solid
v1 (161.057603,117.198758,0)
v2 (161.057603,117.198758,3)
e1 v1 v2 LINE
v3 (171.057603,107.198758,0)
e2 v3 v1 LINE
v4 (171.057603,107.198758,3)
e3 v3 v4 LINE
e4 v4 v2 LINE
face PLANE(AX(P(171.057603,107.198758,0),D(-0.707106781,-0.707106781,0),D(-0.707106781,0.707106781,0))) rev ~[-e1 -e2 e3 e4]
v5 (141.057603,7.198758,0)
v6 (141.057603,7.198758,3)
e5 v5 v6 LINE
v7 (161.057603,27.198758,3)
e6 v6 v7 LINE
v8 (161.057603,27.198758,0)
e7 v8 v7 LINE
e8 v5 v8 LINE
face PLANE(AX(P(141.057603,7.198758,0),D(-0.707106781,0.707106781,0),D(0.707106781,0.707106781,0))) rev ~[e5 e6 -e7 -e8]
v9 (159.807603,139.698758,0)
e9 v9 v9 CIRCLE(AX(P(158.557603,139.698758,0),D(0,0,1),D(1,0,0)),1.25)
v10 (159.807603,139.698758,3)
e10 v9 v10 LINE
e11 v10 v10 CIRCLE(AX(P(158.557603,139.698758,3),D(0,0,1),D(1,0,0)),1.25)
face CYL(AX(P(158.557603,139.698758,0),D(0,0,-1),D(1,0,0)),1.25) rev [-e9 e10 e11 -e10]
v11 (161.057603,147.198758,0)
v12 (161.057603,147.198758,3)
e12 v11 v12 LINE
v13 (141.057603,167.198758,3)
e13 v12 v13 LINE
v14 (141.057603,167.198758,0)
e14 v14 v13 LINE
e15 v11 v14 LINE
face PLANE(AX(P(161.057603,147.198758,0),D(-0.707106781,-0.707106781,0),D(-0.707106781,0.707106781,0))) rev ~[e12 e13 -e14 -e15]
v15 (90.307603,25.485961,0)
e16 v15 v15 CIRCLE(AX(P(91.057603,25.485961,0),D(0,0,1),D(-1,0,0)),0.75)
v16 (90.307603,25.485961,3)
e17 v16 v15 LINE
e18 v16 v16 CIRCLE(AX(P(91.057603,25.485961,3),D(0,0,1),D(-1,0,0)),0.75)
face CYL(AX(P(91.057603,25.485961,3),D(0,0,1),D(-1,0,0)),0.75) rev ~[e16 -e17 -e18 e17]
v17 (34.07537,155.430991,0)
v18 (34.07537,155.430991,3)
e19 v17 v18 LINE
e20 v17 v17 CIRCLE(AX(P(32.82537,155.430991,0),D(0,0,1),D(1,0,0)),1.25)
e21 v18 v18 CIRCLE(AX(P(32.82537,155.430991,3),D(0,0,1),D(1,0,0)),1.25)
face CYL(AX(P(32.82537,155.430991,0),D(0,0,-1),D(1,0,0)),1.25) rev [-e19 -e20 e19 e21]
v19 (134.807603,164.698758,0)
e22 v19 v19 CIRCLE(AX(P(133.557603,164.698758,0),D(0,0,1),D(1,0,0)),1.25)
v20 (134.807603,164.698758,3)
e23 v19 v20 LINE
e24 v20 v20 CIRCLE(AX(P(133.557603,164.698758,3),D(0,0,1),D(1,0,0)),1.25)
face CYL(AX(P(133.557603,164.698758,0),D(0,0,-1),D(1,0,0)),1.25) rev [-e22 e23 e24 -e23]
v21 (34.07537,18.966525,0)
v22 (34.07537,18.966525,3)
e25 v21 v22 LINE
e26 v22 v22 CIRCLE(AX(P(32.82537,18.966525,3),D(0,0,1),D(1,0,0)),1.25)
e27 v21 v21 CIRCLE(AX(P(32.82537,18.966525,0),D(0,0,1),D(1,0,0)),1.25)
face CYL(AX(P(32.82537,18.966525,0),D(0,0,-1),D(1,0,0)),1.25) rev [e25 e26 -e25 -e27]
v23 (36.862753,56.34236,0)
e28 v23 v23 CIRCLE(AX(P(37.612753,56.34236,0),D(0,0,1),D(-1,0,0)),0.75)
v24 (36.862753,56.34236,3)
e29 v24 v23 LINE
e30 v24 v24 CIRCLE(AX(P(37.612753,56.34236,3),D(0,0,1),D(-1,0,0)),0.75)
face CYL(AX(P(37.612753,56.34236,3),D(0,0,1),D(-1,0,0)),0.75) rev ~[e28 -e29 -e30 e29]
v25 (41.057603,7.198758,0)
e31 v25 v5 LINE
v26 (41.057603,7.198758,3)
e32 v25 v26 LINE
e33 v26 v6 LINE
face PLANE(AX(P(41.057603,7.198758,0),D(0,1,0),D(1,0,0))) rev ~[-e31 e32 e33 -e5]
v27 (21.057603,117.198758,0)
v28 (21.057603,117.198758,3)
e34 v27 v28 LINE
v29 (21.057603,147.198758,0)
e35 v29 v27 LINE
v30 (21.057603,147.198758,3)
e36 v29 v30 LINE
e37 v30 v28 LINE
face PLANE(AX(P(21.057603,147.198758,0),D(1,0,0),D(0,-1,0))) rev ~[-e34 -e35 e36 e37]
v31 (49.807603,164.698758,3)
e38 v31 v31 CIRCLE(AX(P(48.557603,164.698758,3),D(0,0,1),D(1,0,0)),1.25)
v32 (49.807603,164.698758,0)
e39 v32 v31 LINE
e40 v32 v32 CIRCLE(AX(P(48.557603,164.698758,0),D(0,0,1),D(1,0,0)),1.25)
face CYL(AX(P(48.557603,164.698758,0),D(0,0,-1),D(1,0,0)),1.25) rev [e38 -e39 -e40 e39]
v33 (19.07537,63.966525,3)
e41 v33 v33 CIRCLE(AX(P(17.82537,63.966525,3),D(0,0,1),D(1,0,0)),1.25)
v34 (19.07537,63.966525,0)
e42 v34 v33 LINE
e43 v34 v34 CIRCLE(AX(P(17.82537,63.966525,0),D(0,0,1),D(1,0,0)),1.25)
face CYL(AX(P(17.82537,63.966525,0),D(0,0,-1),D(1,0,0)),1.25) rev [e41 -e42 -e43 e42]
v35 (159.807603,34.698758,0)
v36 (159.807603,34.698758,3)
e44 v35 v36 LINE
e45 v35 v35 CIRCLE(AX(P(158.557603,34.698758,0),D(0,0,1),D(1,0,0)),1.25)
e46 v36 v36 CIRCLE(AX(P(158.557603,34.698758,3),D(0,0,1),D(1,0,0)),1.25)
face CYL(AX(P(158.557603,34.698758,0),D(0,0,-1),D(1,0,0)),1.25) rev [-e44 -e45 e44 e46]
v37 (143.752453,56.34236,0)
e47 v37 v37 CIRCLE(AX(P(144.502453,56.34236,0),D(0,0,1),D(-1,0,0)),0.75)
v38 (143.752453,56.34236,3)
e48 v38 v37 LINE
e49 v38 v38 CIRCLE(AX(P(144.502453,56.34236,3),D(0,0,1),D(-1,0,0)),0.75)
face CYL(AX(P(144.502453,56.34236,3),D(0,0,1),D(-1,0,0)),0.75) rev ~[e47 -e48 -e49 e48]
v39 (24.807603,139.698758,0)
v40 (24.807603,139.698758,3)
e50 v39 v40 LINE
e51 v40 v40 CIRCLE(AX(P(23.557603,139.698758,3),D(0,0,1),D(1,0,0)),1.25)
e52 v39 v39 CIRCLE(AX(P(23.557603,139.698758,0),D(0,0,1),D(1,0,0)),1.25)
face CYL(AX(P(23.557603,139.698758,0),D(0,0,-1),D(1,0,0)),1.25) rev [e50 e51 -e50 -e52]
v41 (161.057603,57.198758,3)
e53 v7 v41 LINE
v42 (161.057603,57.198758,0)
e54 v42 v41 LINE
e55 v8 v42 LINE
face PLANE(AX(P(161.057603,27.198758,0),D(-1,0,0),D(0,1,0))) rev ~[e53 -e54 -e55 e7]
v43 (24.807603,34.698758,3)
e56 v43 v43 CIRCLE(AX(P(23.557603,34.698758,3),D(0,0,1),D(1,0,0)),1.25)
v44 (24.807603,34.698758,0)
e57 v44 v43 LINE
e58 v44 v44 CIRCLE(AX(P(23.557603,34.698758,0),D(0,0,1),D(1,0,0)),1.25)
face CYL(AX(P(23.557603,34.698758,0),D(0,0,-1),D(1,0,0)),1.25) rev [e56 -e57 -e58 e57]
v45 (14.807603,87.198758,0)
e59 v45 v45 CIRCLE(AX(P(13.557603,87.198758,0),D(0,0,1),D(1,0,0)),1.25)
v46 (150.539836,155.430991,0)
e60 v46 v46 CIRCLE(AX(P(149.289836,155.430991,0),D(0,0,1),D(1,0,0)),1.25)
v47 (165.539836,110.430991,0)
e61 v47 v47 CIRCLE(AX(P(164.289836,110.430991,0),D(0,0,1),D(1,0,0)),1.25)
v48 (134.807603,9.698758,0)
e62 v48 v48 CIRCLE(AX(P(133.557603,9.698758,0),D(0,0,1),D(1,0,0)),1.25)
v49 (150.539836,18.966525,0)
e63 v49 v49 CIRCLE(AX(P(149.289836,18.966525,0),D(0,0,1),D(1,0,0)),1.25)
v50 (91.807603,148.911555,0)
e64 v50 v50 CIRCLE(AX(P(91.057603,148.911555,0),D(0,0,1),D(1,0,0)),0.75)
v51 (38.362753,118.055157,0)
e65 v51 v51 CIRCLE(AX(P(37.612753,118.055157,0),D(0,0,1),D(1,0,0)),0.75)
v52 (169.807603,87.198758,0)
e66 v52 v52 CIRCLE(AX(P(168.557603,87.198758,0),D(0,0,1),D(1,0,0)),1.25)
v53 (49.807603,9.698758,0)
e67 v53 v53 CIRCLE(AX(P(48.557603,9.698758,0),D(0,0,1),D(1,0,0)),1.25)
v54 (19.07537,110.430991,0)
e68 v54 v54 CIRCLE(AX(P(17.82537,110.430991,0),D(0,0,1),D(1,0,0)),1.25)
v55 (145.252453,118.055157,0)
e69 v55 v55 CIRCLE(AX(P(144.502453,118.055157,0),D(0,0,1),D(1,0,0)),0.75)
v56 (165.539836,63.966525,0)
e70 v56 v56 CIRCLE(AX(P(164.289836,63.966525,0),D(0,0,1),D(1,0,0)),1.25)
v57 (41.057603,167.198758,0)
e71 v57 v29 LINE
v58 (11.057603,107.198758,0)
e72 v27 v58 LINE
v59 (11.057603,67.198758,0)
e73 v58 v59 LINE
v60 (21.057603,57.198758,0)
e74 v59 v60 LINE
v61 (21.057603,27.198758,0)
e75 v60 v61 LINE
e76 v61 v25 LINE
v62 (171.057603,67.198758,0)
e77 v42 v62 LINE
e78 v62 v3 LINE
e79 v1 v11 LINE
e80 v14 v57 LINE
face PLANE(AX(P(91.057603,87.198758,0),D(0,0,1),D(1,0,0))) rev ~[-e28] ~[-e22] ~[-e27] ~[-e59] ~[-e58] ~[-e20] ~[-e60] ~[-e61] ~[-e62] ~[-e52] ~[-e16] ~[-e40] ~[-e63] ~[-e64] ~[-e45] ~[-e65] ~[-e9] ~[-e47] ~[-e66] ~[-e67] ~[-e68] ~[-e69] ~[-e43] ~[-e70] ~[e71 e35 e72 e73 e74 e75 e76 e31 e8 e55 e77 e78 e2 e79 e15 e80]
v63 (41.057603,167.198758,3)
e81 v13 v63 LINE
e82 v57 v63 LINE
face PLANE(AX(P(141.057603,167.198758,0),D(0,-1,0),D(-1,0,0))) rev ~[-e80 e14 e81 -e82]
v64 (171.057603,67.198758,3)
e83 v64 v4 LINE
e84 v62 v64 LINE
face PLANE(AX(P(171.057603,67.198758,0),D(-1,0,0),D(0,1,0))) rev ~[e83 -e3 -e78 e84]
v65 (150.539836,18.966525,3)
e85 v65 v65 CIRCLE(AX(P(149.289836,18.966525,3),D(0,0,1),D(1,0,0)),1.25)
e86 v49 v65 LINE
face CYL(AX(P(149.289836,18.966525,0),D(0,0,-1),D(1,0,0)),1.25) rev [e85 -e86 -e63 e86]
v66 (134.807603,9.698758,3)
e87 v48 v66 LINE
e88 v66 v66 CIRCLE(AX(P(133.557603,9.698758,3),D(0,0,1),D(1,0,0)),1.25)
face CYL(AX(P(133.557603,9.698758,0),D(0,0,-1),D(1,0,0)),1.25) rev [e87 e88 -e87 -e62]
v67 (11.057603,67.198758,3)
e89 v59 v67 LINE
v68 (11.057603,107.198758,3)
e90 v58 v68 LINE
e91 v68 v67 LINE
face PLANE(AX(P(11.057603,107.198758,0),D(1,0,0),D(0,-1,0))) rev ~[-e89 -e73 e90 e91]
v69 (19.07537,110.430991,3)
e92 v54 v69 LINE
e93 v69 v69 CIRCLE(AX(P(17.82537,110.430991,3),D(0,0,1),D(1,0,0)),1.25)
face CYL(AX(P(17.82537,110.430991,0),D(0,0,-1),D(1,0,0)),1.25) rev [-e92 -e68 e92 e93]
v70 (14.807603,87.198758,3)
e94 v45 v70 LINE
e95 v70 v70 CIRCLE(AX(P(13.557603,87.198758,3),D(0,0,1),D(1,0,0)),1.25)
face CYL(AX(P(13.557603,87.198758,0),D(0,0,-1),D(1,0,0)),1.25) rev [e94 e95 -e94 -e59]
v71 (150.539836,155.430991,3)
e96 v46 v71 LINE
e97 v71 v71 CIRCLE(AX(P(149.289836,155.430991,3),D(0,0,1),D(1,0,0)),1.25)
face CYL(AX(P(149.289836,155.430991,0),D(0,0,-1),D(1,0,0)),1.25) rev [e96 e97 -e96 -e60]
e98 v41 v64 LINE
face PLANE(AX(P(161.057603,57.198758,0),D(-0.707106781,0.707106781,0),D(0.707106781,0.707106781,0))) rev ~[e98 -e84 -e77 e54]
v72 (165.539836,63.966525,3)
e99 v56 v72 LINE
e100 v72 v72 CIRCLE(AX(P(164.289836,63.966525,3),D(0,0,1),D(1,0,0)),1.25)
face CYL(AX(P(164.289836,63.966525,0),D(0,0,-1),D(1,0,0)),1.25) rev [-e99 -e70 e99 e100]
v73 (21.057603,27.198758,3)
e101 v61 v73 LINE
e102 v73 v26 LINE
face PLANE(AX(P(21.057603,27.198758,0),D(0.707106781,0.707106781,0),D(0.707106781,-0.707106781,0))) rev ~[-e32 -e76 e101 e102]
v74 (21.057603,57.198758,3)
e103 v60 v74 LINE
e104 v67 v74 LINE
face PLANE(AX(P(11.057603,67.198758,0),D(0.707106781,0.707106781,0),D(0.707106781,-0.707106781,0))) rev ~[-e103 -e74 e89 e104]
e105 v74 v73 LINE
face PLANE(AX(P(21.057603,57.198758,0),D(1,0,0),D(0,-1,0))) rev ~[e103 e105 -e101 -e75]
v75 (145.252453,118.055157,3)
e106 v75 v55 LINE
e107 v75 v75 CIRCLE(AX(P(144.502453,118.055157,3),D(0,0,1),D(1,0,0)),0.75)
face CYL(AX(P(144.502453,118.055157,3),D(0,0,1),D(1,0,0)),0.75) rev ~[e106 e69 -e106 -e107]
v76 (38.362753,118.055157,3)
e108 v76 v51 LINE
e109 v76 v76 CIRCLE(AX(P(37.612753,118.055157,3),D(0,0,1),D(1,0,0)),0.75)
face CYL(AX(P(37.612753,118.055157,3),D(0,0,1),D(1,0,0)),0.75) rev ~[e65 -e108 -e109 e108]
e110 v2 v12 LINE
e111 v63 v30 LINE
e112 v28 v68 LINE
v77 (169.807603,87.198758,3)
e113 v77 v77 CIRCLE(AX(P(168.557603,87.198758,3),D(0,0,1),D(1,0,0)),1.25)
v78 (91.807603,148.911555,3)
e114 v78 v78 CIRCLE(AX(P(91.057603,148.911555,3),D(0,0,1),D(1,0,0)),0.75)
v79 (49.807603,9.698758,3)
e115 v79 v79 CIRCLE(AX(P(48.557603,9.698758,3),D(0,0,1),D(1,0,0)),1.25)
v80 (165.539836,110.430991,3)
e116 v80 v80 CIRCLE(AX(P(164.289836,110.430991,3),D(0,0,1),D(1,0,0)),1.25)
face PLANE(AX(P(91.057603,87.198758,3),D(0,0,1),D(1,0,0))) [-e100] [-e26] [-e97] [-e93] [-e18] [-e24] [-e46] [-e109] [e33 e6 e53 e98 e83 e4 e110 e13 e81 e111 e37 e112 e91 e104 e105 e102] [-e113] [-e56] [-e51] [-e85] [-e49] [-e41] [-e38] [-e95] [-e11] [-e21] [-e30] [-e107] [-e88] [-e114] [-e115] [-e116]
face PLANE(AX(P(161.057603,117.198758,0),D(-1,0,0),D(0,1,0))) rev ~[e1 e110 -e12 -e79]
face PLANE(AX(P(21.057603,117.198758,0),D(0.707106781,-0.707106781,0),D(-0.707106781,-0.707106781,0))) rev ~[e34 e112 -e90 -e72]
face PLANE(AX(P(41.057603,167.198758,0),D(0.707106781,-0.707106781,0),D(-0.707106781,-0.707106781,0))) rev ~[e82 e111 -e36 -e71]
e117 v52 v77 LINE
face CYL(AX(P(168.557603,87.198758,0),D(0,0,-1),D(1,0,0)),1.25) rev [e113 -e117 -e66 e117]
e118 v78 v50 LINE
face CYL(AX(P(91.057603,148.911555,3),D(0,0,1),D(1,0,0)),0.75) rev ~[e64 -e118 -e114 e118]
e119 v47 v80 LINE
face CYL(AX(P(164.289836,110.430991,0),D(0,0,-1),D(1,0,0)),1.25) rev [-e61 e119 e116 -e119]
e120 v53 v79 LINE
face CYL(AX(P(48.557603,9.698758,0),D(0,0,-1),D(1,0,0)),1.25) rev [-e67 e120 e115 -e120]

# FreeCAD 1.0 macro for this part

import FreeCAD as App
import Part
import Sketcher

doc = App.newDocument("Part")
params = doc.addObject("Spreadsheet::Sheet", "Params")
for row, (alias, value) in enumerate([
    ("sketch1_diameter", "2.5 mm"),
    ("sketch1_width", "100 mm"),
    ("sketch1_height", "30 mm"),
    ("sketch1_height2", "40 mm"),
    ("pad1_length", "3 mm"),
    ("sketch2_diameter", "1.5 mm"),
    ("pocket1_length", "10 mm"),
], start=1):
    params.set(f"A{row}", alias)
    params.set(f"B{row}", "=" + value)
    params.setAlias(f"B{row}", alias)

body = doc.addObject("PartDesign::Body", "Body")

# Sketch on XY plane
sketch1 = body.newObject("Sketcher::SketchObject", "Sketch")
sketch1.AttachmentSupport = (doc.getObject("XY_Plane"), [""])
sketch1.MapMode = "FlatFace"
sketch1.addGeometry([
    Part.LineSegment(App.Vector(41.057603, 7.198758, 0), App.Vector(141.057603, 7.198758, 0)),  # 0
    Part.LineSegment(App.Vector(141.057603, 7.198758, 0), App.Vector(161.057603, 27.198758, 0)),  # 1
    Part.LineSegment(App.Vector(161.057603, 27.198758, 0), App.Vector(161.057603, 57.198758, 0)),  # 2
    Part.LineSegment(App.Vector(161.057603, 57.198758, 0), App.Vector(171.057603, 67.198758, 0)),  # 3
    Part.LineSegment(App.Vector(171.057603, 67.198758, 0), App.Vector(171.057603, 107.198758, 0)),  # 4
    Part.LineSegment(App.Vector(171.057603, 107.198758, 0), App.Vector(161.057603, 117.198758, 0)),  # 5
    Part.LineSegment(App.Vector(161.057603, 117.198758, 0), App.Vector(161.057603, 147.198758, 0)),  # 6
    Part.LineSegment(App.Vector(161.057603, 147.198758, 0), App.Vector(141.057603, 167.198758, 0)),  # 7
    Part.LineSegment(App.Vector(141.057603, 167.198758, 0), App.Vector(41.057603, 167.198758, 0)),  # 8
    Part.LineSegment(App.Vector(41.057603, 167.198758, 0), App.Vector(21.057603, 147.198758, 0)),  # 9
    Part.LineSegment(App.Vector(21.057603, 147.198758, 0), App.Vector(21.057603, 117.198758, 0)),  # 10
    Part.LineSegment(App.Vector(21.057603, 117.198758, 0), App.Vector(11.057603, 107.198758, 0)),  # 11
    Part.LineSegment(App.Vector(11.057603, 107.198758, 0), App.Vector(11.057603, 67.198758, 0)),  # 12
    Part.LineSegment(App.Vector(11.057603, 67.198758, 0), App.Vector(21.057603, 57.198758, 0)),  # 13
    Part.LineSegment(App.Vector(21.057603, 57.198758, 0), App.Vector(21.057603, 27.198758, 0)),  # 14
    Part.LineSegment(App.Vector(21.057603, 27.198758, 0), App.Vector(41.057603, 7.198758, 0)),  # 15
    Part.Circle(App.Vector(48.557603, 9.698758, 0), App.Vector(0, 0, 1), 1.25),  # 16
    Part.Circle(App.Vector(32.82537, 18.966525, 0), App.Vector(0, 0, 1), 1.25),  # 17
    Part.Circle(App.Vector(23.557603, 34.698758, 0), App.Vector(0, 0, 1), 1.25),  # 18
    Part.Circle(App.Vector(17.82537, 63.966525, 0), App.Vector(0, 0, 1), 1.25),  # 19
    Part.Circle(App.Vector(133.557603, 9.698758, 0), App.Vector(0, 0, 1), 1.25),  # 20
    Part.Circle(App.Vector(149.289836, 18.966525, 0), App.Vector(0, 0, 1), 1.25),  # 21
    Part.Circle(App.Vector(158.557603, 34.698758, 0), App.Vector(0, 0, 1), 1.25),  # 22
    Part.Circle(App.Vector(164.289836, 63.966525, 0), App.Vector(0, 0, 1), 1.25),  # 23
    Part.Circle(App.Vector(13.557603, 87.198758, 0), App.Vector(0, 0, 1), 1.25),  # 24
    Part.Circle(App.Vector(17.82537, 110.430991, 0), App.Vector(0, 0, 1), 1.25),  # 25
    Part.Circle(App.Vector(23.557603, 139.698758, 0), App.Vector(0, 0, 1), 1.25),  # 26
    Part.Circle(App.Vector(32.82537, 155.430991, 0), App.Vector(0, 0, 1), 1.25),  # 27
    Part.Circle(App.Vector(48.557603, 164.698758, 0), App.Vector(0, 0, 1), 1.25),  # 28
    Part.Circle(App.Vector(168.557603, 87.198758, 0), App.Vector(0, 0, 1), 1.25),  # 29
    Part.Circle(App.Vector(164.289836, 110.430991, 0), App.Vector(0, 0, 1), 1.25),  # 30
    Part.Circle(App.Vector(158.557603, 139.698758, 0), App.Vector(0, 0, 1), 1.25),  # 31
    Part.Circle(App.Vector(149.289836, 155.430991, 0), App.Vector(0, 0, 1), 1.25),  # 32
    Part.Circle(App.Vector(133.557603, 164.698758, 0), App.Vector(0, 0, 1), 1.25),  # 33
], False)
sketch1.addConstraint([
    Sketcher.Constraint("Coincident", 0, 2, 1, 1),
    Sketcher.Constraint("Coincident", 1, 2, 2, 1),
    Sketcher.Constraint("Coincident", 2, 2, 3, 1),
    Sketcher.Constraint("Coincident", 3, 2, 4, 1),
    Sketcher.Constraint("Coincident", 4, 2, 5, 1),
    Sketcher.Constraint("Coincident", 5, 2, 6, 1),
    Sketcher.Constraint("Coincident", 6, 2, 7, 1),
    Sketcher.Constraint("Coincident", 7, 2, 8, 1),
    Sketcher.Constraint("Coincident", 8, 2, 9, 1),
    Sketcher.Constraint("Coincident", 9, 2, 10, 1),
    Sketcher.Constraint("Coincident", 10, 2, 11, 1),
    Sketcher.Constraint("Coincident", 11, 2, 12, 1),
    Sketcher.Constraint("Coincident", 12, 2, 13, 1),
    Sketcher.Constraint("Coincident", 13, 2, 14, 1),
    Sketcher.Constraint("Coincident", 14, 2, 15, 1),
    Sketcher.Constraint("Coincident", 15, 2, 0, 1),
    Sketcher.Constraint("Horizontal", 0),
    Sketcher.Constraint("Vertical", 2),
    Sketcher.Constraint("Vertical", 4),
    Sketcher.Constraint("Vertical", 6),
    Sketcher.Constraint("Horizontal", 8),
    Sketcher.Constraint("Vertical", 10),
    Sketcher.Constraint("Vertical", 12),
    Sketcher.Constraint("Vertical", 14),
    Sketcher.Constraint("Equal", 16, 17),
    Sketcher.Constraint("Equal", 17, 18),
    Sketcher.Constraint("Equal", 18, 19),
    Sketcher.Constraint("Equal", 19, 20),
    Sketcher.Constraint("Equal", 20, 21),
    Sketcher.Constraint("Equal", 21, 22),
    Sketcher.Constraint("Equal", 22, 23),
    Sketcher.Constraint("Equal", 23, 24),
    Sketcher.Constraint("Equal", 24, 25),
    Sketcher.Constraint("Equal", 25, 26),
    Sketcher.Constraint("Equal", 26, 27),
    Sketcher.Constraint("Equal", 27, 28),
    Sketcher.Constraint("Equal", 28, 29),
    Sketcher.Constraint("Equal", 29, 30),
    Sketcher.Constraint("Equal", 30, 31),
    Sketcher.Constraint("Equal", 31, 32),
    Sketcher.Constraint("Equal", 32, 33),
    Sketcher.Constraint("Parallel", 1, 3),
    Sketcher.Constraint("Perpendicular", 3, 5),
    Sketcher.Constraint("Parallel", 5, 7),
    Sketcher.Constraint("Perpendicular", 7, 9),
    Sketcher.Constraint("Parallel", 9, 11),
    Sketcher.Constraint("Perpendicular", 11, 13),
    Sketcher.Constraint("Parallel", 13, 15),
    Sketcher.Constraint("Horizontal", 16, 3, 20, 3),
    Sketcher.Constraint("Horizontal", 17, 3, 21, 3),
    Sketcher.Constraint("Horizontal", 18, 3, 22, 3),
    Sketcher.Constraint("Horizontal", 19, 3, 23, 3),
    Sketcher.Constraint("Horizontal", 24, 3, 29, 3),
    Sketcher.Constraint("Horizontal", 25, 3, 30, 3),
    Sketcher.Constraint("Horizontal", 26, 3, 31, 3),
    Sketcher.Constraint("Horizontal", 27, 3, 32, 3),
    Sketcher.Constraint("Horizontal", 28, 3, 33, 3),
    Sketcher.Constraint("Horizontal", 6, 2, 9, 2),
    Sketcher.Constraint("Horizontal", 5, 2, 10, 2),
    Sketcher.Constraint("Horizontal", 4, 2, 11, 2),
    Sketcher.Constraint("Horizontal", 3, 2, 12, 2),
    Sketcher.Constraint("Horizontal", 2, 2, 13, 2),
    Sketcher.Constraint("Horizontal", 1, 2, 14, 2),
    Sketcher.Constraint("Vertical", 19, 3, 25, 3),
    Sketcher.Constraint("Vertical", 18, 3, 26, 3),
    Sketcher.Constraint("Vertical", 17, 3, 27, 3),
    Sketcher.Constraint("Vertical", 16, 3, 28, 3),
    Sketcher.Constraint("Vertical", 23, 3, 30, 3),
    Sketcher.Constraint("Vertical", 22, 3, 31, 3),
    Sketcher.Constraint("Vertical", 21, 3, 32, 3),
    Sketcher.Constraint("Vertical", 20, 3, 33, 3),
    Sketcher.Constraint("Vertical", 2, 2, 5, 2),
    Sketcher.Constraint("Vertical", 0, 2, 7, 2),
    Sketcher.Constraint("Vertical", 10, 2, 13, 2),
    Sketcher.Constraint("Equal", 2, 6),
    Sketcher.Constraint("Diameter", 16, 2.5),
    Sketcher.Constraint("DistanceX", 0, 1, 0, 2, 100.0),
    Sketcher.Constraint("DistanceY", 2, 1, 2, 2, 30.0),
    Sketcher.Constraint("DistanceY", 4, 1, 4, 2, 40.0),
    Sketcher.Constraint("DistanceX", 18, 3, 16, 3, 25.0),
    Sketcher.Constraint("DistanceY", 16, 3, 18, 3, 25.0),
    Sketcher.Constraint("DistanceX", 19, 3, 17, 3, 15.0),
    Sketcher.Constraint("DistanceY", 17, 3, 19, 3, 45.0),
    Sketcher.Constraint("DistanceX", 16, 3, 20, 3, 85.0),
    Sketcher.Constraint("DistanceX", 20, 3, 22, 3, 25.0),
    Sketcher.Constraint("DistanceX", 21, 3, 23, 3, 15.0),
    Sketcher.Constraint("DistanceX", 24, 3, 18, 3, 10.0),
    Sketcher.Constraint("DistanceY", 18, 3, 26, 3, 105.0),
    Sketcher.Constraint("DistanceY", 25, 3, 27, 3, 45.0),
    Sketcher.Constraint("DistanceY", 26, 3, 28, 3, 25.0),
    Sketcher.Constraint("DistanceX", 22, 3, 29, 3, 10.0),
    Sketcher.Constraint("DistanceY", 0, 2, 29, 3, 80.0),
    Sketcher.Constraint("DistanceX", 0, 2, 1, 2, 20.0),
    Sketcher.Constraint("DistanceX", 2, 2, 3, 2, 10.0),
    Sketcher.Constraint("DistanceY", 18, 3, 24, 3, 52.5),
    Sketcher.Constraint("DistanceX", 20, 3, 0, 2, 7.5),
    Sketcher.Constraint("DistanceY", -1, 1, 16, 3, 9.698758),
    Sketcher.Constraint("DistanceX", -1, 1, 17, 3, 32.82537),
    Sketcher.Constraint("DistanceY", -1, 1, 25, 3, 110.430991),
    Sketcher.Constraint("DistanceX", -1, 1, 16, 3, 48.557603),
    Sketcher.Constraint("DistanceY", -1, 1, 17, 3, 18.966525),
    Sketcher.Constraint("DistanceX", -1, 1, 21, 3, 149.289836),
])
sketch1.setExpression("Constraints[75]", "Params.sketch1_diameter")
sketch1.setExpression("Constraints[76]", "Params.sketch1_width")
sketch1.setExpression("Constraints[77]", "Params.sketch1_height")
sketch1.setExpression("Constraints[78]", "Params.sketch1_height2")
pad1 = body.newObject("PartDesign::Pad", "Pad")
pad1.Profile = sketch1
pad1.setExpression("Length", "Params.pad1_length")

# Sketch on XY plane
sketch2 = body.newObject("Sketcher::SketchObject", "Sketch001")
sketch2.AttachmentSupport = (doc.getObject("XY_Plane"), [""])
sketch2.MapMode = "FlatFace"
sketch2.AttachmentOffset = App.Placement(App.Vector(0, 0, 3), App.Rotation())
sketch2.addGeometry([
    Part.Circle(App.Vector(91.057603, 148.911555, 0), App.Vector(0, 0, 1), 0.75),  # 0
    Part.Circle(App.Vector(37.612753, 118.055157, 0), App.Vector(0, 0, 1), 0.75),  # 1
    Part.Circle(App.Vector(144.502453, 118.055157, 0), App.Vector(0, 0, 1), 0.75),  # 2
    Part.Circle(App.Vector(144.502453, 56.34236, 0), App.Vector(0, 0, 1), 0.75),  # 3
    Part.Circle(App.Vector(91.057603, 25.485961, 0), App.Vector(0, 0, 1), 0.75),  # 4
    Part.Circle(App.Vector(37.612753, 56.34236, 0), App.Vector(0, 0, 1), 0.75),  # 5
], False)
sketch2.addConstraint([
    Sketcher.Constraint("Equal", 0, 1),
    Sketcher.Constraint("Equal", 1, 2),
    Sketcher.Constraint("Equal", 2, 3),
    Sketcher.Constraint("Equal", 3, 4),
    Sketcher.Constraint("Equal", 4, 5),
    Sketcher.Constraint("Horizontal", 1, 3, 2, 3),
    Sketcher.Constraint("Horizontal", 3, 3, 5, 3),
    Sketcher.Constraint("Vertical", 2, 3, 3, 3),
    Sketcher.Constraint("Vertical", 0, 3, 4, 3),
    Sketcher.Constraint("Vertical", 1, 3, 5, 3),
    Sketcher.Constraint("Diameter", 0, 1.5),
    Sketcher.Constraint("DistanceY", 1, 3, 0, 3, 30.856399),
    Sketcher.Constraint("DistanceX", 1, 3, 2, 3, 106.8897),
    Sketcher.Constraint("DistanceY", 4, 3, 3, 3, 30.856399),
    Sketcher.Constraint("DistanceY", -1, 1, 3, 3, 56.34236),
    Sketcher.Constraint("DistanceX", 1, 3, 0, 3, 53.44485),
    Sketcher.Constraint("DistanceX", -1, 1, 0, 3, 91.057603),
    Sketcher.Constraint("DistanceY", -1, 1, 0, 3, 148.911555),
])
sketch2.setExpression("Constraints[10]", "Params.sketch2_diameter")
pocket1 = body.newObject("PartDesign::Pocket", "Pocket")
pocket1.Profile = sketch2
pocket1.setExpression("Length", "Params.pocket1_length")

doc.recompute()
